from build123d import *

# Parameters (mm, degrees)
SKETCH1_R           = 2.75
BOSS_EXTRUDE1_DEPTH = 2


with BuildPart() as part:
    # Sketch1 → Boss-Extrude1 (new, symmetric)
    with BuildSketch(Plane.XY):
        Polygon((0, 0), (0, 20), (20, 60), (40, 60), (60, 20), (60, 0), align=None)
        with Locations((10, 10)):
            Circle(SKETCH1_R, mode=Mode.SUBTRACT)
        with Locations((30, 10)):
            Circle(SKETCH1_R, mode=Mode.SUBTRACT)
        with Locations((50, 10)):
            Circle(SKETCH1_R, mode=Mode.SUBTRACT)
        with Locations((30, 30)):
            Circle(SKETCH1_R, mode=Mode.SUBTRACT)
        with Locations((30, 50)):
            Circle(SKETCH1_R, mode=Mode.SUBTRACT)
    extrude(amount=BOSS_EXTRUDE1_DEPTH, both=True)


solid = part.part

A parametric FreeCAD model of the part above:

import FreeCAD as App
import Part
import Sketcher
from FreeCAD import Vector


def add_polygon(sketch, points):
    """Adds a closed chain of lines whose ends are joined by coincident constraints."""
    first, n = sketch.GeometryCount, len(points)
    for a, b in zip(points, points[1:] + points[:1]):
        sketch.addGeometry(Part.LineSegment(App.Vector(*a, 0), App.Vector(*b, 0)), False)
    for i in range(n):
        sketch.addConstraint(Sketcher.Constraint("Coincident", first + i, 2, first + (i + 1) % n, 1))

doc = App.newDocument("Part")
body = doc.addObject("PartDesign::Body", "Body")

sketch1 = doc.addObject("Sketcher::SketchObject", "Sketch")
body.addObject(sketch1)
sketch1.AttachmentSupport = (doc.XY_Plane, [""])
sketch1.MapMode = "FlatFace"
add_polygon(sketch1, [(0, 20), (0, 0), (60, 0), (60, 20), (40, 60), (20, 60)])
sketch1.addGeometry(Part.Circle(Vector(50, 10, 0), Vector(0, 0, 1), 2.8), False)
sketch1.addGeometry(Part.Circle(Vector(30, 10, 0), Vector(0, 0, 1), 2.8), False)
sketch1.addGeometry(Part.Circle(Vector(10, 10, 0), Vector(0, 0, 1), 2.8), False)
sketch1.addGeometry(Part.Circle(Vector(30, 30, 0), Vector(0, 0, 1), 2.8), False)
sketch1.addGeometry(Part.Circle(Vector(30, 50, 0), Vector(0, 0, 1), 2.8), False)
sketch1.addConstraint([
    Sketcher.Constraint("Vertical", 0),
    Sketcher.Constraint("Horizontal", 1),
    Sketcher.Constraint("Vertical", 2),
    Sketcher.Constraint("Horizontal", 4),
    Sketcher.Constraint("Coincident", 0, 2, -1, 1),
    Sketcher.Constraint("Equal", 6, 7),
    Sketcher.Constraint("Equal", 7, 8),
    Sketcher.Constraint("Equal", 8, 9),
    Sketcher.Constraint("Equal", 9, 10),
    Sketcher.Constraint("Horizontal", 6, 3, 7, 3),
    Sketcher.Constraint("Horizontal", 7, 3, 8, 3),
    Sketcher.Constraint("Horizontal", 2, 2, 5, 2),
    Sketcher.Constraint("Vertical", 7, 3, 9, 3),
    Sketcher.Constraint("Vertical", 9, 3, 10, 3),
    Sketcher.Constraint("Equal", 4, 0),
    Sketcher.Constraint("Equal", 3, 5),
    Sketcher.Constraint("Diameter", 6, 5.5),
    Sketcher.Constraint("DistanceX", 1, 1, 1, 2, 60.0),
    Sketcher.Constraint("DistanceX", 4, 2, 4, 1, 20.0),
    Sketcher.Constraint("DistanceX", -1, 1, 6, 3, 50.0),
    Sketcher.Constraint("DistanceY", -1, 1, 6, 3, 10.0),
    Sketcher.Constraint("DistanceX", -1, 1, 7, 3, 30.0),
    Sketcher.Constraint("DistanceX", -1, 1, 8, 3, 10.0),
    Sketcher.Constraint("DistanceY", -1, 1, 9, 3, 30.0),
    Sketcher.Constraint("DistanceY", -1, 1, 10, 3, 50.0),
    Sketcher.Constraint("DistanceY", -1, 1, 3, 2, 60.0),
])
pad1 = doc.addObject("PartDesign::Pad", "Pad")
body.addObject(pad1)
pad1.Profile = sketch1
pad1.Length = 4
pad1.Midplane = True

doc.recompute()
